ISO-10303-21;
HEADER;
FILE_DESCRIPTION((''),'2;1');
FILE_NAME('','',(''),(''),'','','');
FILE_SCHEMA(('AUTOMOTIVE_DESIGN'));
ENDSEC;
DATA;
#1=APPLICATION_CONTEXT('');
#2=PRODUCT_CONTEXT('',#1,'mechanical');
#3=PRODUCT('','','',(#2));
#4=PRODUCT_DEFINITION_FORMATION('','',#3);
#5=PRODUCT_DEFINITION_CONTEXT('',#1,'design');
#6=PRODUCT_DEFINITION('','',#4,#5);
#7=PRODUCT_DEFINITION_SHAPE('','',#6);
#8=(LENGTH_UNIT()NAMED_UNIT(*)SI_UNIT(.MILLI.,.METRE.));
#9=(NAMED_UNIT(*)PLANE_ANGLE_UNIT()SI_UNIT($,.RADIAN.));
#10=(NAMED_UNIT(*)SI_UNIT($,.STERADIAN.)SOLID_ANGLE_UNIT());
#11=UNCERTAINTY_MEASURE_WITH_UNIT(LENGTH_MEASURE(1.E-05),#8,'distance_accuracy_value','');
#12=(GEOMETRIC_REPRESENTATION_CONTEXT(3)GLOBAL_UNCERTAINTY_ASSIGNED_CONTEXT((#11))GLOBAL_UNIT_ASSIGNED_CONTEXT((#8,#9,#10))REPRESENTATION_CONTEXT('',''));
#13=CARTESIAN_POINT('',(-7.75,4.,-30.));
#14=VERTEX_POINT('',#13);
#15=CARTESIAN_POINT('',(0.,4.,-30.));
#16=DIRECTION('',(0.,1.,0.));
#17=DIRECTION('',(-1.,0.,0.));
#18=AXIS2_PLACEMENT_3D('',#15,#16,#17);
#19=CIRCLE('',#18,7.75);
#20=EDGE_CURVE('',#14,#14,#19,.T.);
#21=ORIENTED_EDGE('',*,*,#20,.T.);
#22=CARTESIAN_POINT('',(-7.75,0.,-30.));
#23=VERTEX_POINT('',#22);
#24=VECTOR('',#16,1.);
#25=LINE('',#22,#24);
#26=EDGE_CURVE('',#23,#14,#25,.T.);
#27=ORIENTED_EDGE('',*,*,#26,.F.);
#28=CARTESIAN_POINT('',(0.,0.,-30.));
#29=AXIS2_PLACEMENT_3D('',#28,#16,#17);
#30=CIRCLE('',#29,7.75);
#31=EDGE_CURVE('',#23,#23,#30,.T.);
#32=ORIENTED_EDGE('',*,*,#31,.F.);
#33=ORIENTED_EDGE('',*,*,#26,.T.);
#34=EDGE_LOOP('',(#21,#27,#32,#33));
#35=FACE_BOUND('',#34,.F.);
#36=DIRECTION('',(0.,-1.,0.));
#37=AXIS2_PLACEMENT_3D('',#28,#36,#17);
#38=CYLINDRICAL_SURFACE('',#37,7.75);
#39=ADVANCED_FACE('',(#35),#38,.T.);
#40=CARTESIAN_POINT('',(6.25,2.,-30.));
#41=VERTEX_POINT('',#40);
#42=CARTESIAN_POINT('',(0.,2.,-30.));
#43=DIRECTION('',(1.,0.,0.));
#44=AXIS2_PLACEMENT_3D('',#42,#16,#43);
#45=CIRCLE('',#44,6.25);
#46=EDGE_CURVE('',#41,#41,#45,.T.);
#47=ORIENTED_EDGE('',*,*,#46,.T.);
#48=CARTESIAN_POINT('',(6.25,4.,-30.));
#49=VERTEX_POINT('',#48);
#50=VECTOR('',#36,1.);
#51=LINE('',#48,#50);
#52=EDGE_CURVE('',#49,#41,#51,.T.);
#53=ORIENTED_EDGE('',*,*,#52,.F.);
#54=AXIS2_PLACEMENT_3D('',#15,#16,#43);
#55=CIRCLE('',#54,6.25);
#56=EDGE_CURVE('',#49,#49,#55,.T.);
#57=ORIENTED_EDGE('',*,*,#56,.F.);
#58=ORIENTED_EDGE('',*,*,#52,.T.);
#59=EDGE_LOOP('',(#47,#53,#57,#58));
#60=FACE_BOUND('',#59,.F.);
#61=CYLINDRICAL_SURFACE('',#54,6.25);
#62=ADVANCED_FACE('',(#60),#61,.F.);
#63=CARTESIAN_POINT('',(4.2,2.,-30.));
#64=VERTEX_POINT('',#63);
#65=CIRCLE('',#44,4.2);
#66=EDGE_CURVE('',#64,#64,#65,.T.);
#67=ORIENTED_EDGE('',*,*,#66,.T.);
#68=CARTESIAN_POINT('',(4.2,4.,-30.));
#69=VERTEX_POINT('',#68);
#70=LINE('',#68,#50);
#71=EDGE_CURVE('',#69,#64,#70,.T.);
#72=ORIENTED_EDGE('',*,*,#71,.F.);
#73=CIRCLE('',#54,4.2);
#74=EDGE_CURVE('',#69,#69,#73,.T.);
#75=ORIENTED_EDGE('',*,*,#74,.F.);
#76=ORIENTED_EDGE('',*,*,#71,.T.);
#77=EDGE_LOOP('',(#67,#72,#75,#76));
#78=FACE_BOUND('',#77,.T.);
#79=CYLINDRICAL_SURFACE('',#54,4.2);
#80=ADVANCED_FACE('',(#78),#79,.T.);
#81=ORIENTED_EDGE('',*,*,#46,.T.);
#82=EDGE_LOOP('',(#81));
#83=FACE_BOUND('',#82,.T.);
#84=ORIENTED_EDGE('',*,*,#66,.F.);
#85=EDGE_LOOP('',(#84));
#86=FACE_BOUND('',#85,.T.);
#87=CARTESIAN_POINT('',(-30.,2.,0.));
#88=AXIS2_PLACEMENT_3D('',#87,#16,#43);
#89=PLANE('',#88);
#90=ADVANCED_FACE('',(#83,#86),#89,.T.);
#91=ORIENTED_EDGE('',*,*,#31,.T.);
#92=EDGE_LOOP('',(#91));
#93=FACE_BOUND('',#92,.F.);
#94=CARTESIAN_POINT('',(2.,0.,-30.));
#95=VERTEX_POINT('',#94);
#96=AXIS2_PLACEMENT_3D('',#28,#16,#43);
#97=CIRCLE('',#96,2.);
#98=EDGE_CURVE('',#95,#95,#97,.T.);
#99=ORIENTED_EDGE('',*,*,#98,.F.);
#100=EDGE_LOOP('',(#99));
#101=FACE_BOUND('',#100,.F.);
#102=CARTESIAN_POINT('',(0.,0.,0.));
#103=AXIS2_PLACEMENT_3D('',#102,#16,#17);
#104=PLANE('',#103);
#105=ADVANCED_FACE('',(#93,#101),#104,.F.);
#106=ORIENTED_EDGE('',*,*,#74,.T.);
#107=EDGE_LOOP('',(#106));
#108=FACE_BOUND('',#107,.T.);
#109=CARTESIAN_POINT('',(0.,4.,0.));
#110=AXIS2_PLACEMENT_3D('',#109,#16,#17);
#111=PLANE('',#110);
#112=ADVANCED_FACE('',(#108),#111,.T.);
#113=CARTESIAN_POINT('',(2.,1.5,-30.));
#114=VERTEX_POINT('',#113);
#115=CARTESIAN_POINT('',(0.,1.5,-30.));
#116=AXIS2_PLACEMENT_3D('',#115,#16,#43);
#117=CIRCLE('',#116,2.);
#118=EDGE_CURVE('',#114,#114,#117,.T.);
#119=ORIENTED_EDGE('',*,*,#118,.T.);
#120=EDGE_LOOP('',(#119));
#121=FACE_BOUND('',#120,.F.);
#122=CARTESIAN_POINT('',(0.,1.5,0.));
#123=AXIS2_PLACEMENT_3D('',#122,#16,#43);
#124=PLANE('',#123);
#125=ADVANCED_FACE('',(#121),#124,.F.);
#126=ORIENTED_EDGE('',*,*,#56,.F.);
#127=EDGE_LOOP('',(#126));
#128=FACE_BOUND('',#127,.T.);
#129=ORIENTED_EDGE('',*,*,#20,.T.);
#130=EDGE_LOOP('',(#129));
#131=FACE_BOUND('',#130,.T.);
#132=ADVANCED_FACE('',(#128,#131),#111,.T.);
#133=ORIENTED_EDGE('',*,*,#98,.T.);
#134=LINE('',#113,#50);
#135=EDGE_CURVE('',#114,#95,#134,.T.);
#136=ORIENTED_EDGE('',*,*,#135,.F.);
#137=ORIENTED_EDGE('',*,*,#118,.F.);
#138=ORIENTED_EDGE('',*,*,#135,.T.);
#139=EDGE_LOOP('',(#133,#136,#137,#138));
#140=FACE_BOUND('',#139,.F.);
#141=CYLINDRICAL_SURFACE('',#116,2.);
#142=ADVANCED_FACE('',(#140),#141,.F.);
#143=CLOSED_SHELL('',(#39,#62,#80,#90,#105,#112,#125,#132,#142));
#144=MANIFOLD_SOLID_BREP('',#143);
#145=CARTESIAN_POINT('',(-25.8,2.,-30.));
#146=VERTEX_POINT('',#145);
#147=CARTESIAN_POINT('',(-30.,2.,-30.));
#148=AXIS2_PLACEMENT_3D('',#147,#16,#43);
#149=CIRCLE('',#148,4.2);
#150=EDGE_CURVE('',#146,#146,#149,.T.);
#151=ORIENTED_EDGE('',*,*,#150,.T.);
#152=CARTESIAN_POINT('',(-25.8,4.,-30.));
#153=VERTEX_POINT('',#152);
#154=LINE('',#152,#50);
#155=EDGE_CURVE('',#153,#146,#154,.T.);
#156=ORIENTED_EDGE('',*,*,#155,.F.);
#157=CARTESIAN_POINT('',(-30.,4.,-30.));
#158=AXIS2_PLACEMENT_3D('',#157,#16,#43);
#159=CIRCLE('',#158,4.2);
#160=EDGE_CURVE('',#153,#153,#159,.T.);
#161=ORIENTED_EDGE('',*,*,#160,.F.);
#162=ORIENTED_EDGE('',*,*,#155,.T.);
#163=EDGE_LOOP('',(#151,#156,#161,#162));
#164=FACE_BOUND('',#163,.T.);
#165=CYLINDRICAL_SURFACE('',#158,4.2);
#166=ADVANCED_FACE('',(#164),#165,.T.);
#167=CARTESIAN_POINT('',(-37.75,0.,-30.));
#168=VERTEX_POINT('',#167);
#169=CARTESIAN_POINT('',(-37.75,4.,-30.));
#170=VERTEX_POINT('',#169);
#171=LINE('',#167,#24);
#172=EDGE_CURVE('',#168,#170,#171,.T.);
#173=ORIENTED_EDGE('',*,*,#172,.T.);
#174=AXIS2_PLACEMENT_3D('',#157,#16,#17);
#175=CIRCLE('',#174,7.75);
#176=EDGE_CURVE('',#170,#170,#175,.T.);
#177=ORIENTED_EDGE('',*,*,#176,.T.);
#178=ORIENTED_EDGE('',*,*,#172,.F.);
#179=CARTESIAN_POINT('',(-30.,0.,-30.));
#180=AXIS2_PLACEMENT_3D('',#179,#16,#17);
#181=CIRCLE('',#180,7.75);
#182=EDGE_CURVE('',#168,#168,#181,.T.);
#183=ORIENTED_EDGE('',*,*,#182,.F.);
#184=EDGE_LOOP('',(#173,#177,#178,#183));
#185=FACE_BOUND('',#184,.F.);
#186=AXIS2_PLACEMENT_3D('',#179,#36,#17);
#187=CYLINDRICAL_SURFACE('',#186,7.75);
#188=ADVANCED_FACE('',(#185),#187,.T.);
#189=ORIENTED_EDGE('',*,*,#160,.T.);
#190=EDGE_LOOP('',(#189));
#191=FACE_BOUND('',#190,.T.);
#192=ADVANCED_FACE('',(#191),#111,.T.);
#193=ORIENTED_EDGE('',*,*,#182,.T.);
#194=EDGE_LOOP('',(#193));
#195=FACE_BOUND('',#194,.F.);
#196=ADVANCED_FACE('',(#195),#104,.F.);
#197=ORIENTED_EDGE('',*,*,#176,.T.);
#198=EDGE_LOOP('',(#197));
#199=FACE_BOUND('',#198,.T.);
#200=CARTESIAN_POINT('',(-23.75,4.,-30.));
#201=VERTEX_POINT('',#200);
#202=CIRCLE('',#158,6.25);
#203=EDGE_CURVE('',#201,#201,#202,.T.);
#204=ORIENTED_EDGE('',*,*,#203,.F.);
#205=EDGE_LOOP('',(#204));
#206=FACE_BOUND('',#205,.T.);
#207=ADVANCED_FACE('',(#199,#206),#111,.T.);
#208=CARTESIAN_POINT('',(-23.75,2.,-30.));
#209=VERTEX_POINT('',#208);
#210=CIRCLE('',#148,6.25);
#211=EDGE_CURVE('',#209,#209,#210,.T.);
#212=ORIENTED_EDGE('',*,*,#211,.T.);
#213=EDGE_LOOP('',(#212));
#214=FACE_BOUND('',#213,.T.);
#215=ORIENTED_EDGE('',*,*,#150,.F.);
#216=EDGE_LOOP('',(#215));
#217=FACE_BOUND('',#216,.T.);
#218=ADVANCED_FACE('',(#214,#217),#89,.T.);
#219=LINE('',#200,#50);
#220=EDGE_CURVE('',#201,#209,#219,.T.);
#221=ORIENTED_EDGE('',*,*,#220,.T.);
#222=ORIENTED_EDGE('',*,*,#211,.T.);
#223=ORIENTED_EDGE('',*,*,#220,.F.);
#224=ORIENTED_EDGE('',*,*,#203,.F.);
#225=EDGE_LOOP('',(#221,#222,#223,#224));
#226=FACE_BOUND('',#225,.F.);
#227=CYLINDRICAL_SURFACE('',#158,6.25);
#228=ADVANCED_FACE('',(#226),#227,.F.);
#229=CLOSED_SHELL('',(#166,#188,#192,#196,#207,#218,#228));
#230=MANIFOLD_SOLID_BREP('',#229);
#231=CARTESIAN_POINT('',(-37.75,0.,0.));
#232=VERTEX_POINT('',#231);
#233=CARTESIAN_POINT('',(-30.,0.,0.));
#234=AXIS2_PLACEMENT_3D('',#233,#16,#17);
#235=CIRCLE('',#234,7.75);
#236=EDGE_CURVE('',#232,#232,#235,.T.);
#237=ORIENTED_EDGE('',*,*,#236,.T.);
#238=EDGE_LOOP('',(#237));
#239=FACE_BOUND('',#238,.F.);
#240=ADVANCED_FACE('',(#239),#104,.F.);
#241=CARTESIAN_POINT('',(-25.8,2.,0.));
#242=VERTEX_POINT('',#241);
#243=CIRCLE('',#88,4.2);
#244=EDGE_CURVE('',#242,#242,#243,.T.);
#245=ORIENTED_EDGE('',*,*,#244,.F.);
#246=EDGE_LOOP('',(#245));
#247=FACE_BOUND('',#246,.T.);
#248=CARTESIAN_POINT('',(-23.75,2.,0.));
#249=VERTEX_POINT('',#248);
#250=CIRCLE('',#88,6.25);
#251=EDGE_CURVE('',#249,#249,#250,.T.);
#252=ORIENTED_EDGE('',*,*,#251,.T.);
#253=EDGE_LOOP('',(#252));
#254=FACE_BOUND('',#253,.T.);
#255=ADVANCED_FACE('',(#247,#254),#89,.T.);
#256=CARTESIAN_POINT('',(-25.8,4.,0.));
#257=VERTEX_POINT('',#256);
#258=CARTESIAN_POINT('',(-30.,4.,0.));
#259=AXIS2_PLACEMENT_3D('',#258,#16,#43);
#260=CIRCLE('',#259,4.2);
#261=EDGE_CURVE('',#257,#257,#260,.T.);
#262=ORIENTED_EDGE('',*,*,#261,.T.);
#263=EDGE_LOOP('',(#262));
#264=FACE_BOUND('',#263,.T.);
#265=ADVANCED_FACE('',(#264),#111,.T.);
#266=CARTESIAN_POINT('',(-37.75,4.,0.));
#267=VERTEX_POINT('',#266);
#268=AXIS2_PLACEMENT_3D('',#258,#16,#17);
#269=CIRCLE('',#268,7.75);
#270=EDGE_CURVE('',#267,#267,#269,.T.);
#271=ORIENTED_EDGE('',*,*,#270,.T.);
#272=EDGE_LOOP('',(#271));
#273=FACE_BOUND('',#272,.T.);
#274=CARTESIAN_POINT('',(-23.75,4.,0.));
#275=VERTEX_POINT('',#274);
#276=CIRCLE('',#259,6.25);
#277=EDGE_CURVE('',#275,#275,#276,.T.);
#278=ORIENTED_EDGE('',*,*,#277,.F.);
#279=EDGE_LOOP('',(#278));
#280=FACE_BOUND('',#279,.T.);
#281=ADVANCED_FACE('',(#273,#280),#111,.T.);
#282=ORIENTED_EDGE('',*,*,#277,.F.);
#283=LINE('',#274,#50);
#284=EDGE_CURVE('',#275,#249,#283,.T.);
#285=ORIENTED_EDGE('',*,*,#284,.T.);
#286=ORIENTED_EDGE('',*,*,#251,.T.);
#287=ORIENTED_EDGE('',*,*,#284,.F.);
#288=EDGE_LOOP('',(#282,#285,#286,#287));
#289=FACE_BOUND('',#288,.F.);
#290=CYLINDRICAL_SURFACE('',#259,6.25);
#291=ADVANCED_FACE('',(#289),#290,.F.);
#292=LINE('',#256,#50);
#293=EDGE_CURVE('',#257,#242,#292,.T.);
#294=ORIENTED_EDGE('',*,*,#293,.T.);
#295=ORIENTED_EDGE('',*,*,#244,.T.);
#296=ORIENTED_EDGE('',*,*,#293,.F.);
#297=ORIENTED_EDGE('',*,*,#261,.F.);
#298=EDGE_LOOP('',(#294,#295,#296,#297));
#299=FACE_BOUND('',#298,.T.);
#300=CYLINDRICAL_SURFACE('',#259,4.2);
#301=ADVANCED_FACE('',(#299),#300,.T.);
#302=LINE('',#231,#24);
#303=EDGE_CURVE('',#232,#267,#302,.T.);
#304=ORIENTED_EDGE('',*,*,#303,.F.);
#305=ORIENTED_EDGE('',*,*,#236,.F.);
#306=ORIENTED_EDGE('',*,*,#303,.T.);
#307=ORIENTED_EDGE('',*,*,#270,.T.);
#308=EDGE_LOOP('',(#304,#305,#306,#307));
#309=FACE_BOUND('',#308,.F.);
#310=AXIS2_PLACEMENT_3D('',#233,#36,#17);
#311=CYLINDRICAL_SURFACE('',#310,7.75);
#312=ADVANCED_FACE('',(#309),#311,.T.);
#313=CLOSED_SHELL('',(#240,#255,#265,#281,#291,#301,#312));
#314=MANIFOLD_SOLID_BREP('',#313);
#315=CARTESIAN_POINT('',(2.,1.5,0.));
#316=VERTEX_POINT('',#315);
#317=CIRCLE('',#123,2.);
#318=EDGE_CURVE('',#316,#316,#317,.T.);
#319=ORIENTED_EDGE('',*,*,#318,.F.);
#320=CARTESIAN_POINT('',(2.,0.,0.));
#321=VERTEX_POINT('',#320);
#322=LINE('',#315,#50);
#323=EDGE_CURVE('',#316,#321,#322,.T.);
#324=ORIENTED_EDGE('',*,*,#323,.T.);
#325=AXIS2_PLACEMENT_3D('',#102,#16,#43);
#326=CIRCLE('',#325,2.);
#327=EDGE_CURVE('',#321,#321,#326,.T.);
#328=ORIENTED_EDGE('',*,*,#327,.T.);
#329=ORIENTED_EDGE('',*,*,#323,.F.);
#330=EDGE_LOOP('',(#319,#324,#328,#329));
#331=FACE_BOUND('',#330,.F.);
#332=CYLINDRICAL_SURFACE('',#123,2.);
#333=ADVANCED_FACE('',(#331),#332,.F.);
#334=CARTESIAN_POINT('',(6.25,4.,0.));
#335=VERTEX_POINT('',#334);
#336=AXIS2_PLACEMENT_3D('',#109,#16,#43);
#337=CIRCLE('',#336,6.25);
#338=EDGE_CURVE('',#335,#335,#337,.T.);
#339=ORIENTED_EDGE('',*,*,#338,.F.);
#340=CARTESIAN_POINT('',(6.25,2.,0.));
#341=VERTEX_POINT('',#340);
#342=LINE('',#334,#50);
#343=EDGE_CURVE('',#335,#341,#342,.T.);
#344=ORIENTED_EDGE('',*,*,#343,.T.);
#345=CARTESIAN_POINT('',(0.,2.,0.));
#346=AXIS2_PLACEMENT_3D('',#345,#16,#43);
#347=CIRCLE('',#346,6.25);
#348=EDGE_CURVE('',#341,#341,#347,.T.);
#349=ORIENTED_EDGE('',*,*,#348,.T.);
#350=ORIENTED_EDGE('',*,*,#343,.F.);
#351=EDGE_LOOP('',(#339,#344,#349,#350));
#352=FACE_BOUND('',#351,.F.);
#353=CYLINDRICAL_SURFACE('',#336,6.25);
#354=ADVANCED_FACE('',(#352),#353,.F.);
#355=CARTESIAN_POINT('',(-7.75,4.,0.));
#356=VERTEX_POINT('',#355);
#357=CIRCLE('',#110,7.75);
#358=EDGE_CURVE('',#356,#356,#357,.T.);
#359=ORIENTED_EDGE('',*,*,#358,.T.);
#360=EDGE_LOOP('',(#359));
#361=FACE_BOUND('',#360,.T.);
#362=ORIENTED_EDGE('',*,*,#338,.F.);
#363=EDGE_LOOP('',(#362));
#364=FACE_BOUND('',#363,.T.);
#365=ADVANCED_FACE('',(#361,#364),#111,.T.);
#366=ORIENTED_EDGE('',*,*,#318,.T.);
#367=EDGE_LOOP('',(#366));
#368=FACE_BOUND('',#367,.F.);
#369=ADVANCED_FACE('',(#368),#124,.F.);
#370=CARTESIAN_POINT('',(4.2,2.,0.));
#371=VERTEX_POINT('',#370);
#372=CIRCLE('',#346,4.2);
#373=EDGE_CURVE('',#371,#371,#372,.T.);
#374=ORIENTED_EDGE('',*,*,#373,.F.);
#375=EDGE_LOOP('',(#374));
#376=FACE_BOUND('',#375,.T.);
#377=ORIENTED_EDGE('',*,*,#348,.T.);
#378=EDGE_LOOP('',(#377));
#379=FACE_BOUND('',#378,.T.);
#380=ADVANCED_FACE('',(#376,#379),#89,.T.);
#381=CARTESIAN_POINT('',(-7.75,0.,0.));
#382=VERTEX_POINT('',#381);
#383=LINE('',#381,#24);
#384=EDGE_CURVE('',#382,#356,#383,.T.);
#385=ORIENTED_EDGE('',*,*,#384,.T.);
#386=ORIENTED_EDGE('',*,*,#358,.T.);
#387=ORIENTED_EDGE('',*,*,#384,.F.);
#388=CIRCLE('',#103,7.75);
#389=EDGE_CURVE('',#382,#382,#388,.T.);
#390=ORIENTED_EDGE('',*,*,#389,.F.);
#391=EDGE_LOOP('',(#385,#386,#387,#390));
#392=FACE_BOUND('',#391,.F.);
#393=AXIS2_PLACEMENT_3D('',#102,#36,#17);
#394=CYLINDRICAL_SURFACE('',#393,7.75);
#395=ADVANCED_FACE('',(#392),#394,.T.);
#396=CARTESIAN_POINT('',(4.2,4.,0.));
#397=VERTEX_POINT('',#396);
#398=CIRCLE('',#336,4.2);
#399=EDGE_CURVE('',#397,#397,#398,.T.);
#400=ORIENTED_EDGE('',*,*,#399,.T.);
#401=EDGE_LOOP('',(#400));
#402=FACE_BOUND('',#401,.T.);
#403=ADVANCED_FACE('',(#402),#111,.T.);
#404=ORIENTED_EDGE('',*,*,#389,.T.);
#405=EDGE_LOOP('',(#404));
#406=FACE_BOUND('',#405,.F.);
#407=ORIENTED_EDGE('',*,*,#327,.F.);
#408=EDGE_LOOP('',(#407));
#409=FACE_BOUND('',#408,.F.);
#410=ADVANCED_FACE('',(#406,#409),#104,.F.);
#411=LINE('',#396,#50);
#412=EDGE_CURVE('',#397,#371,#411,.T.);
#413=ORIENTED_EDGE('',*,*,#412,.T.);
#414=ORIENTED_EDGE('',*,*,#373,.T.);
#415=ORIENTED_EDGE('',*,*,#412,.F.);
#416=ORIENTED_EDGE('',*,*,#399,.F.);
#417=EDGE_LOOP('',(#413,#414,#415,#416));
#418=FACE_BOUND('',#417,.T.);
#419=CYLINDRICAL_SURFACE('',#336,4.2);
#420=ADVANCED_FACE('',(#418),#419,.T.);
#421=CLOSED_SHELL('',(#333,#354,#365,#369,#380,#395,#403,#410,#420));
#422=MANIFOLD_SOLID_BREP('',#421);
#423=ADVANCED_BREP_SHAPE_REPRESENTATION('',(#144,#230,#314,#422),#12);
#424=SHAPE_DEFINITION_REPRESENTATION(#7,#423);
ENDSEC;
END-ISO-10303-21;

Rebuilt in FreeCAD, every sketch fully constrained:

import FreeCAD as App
import Part
import Sketcher

doc = App.newDocument("Part")
body = doc.addObject("PartDesign::Body", "Body")
body.AllowCompound = True

# Sketch on XZ plane
sketch1 = body.newObject("Sketcher::SketchObject", "Sketch")
sketch1.AttachmentSupport = (doc.getObject("XZ_Plane"), [""])
sketch1.MapMode = "FlatFace"
sketch1.addGeometry([
    Part.Circle(App.Vector(0, 0, 0), App.Vector(0, 0, 1), 8),
    Part.Circle(App.Vector(0, -30, 0), App.Vector(0, 0, 1), 8),
    Part.Circle(App.Vector(-30, 0, 0), App.Vector(0, 0, 1), 8),
    Part.Circle(App.Vector(-30, -30, 0), App.Vector(0, 0, 1), 8),
], False)
sketch1.addConstraint([
    Sketcher.Constraint("Coincident", 0, 3, -1, 1),
    Sketcher.Constraint("Equal", 0, 1),
    Sketcher.Constraint("Equal", 1, 2),
    Sketcher.Constraint("Equal", 2, 3),
    Sketcher.Constraint("PointOnObject", 1, 3, -2),
    Sketcher.Constraint("PointOnObject", 2, 3, -1),
    Sketcher.Constraint("Horizontal", 1, 3, 3, 3),
    Sketcher.Constraint("Vertical", 2, 3, 3, 3),
    Sketcher.Constraint("Diameter", 0, 15.5),
    Sketcher.Constraint("DistanceY", 1, 3, -1, 1, 30.0),
    Sketcher.Constraint("DistanceX", 2, 3, -1, 1, 30.0),
])
pad1 = body.newObject("PartDesign::Pad", "Pad")
pad1.Profile = sketch1
pad1.Length = 4
pad1.Reversed = True

# Sketch on XZ plane
sketch2 = body.newObject("Sketcher::SketchObject", "Sketch001")
sketch2.AttachmentSupport = (doc.getObject("XZ_Plane"), [""])
sketch2.MapMode = "FlatFace"
sketch2.AttachmentOffset = App.Placement(App.Vector(0, 0, -1.5), App.Rotation())
sketch2.addGeometry([
    Part.Circle(App.Vector(0, 0, 0), App.Vector(0, 0, 1), 2),
    Part.Circle(App.Vector(0, -30, 0), App.Vector(0, 0, 1), 2),
], False)
sketch2.addConstraint([
    Sketcher.Constraint("Coincident", 0, 3, -1, 1),
    Sketcher.Constraint("Equal", 0, 1),
    Sketcher.Constraint("PointOnObject", 1, 3, -2),
    Sketcher.Constraint("Diameter", 0, 4.0),
    Sketcher.Constraint("DistanceY", 1, 3, -1, 1, 30.0),
])
pocket1 = body.newObject("PartDesign::Pocket", "Pocket")
pocket1.Profile = sketch2
pocket1.Length = 2.5
pocket1.Reversed = True

# Sketch on XZ plane
sketch3 = body.newObject("Sketcher::SketchObject", "Sketch002")
sketch3.AttachmentSupport = (doc.getObject("XZ_Plane"), [""])
sketch3.MapMode = "FlatFace"
sketch3.AttachmentOffset = App.Placement(App.Vector(0, 0, -4), App.Rotation())
sketch3.addGeometry([
    Part.Circle(App.Vector(-30, 0, 0), App.Vector(0, 0, 1), 6.2),  # 0
    Part.Circle(App.Vector(-30, 0, 0), App.Vector(0, 0, 1), 4.2),  # 1
    Part.Circle(App.Vector(-30, -30, 0), App.Vector(0, 0, 1), 6.2),  # 2
    Part.Circle(App.Vector(-30, -30, 0), App.Vector(0, 0, 1), 4.2),  # 3
    Part.Circle(App.Vector(0, 0, 0), App.Vector(0, 0, 1), 6.2),  # 4
    Part.Circle(App.Vector(0, 0, 0), App.Vector(0, 0, 1), 4.2),  # 5
    Part.Circle(App.Vector(0, -30, 0), App.Vector(0, 0, 1), 6.2),  # 6
    Part.Circle(App.Vector(0, -30, 0), App.Vector(0, 0, 1), 4.2),  # 7
], False)
sketch3.addConstraint([
    Sketcher.Constraint("Coincident", 4, 3, -1, 1),
    Sketcher.Constraint("Coincident", 5, 3, -1, 1),
    Sketcher.Constraint("Coincident", 1, 3, 0, 3),
    Sketcher.Constraint("Coincident", 3, 3, 2, 3),
    Sketcher.Constraint("Coincident", 7, 3, 6, 3),
    Sketcher.Constraint("Equal", 0, 2),
    Sketcher.Constraint("Equal", 1, 3),
    Sketcher.Constraint("Equal", 2, 4),
    Sketcher.Constraint("Equal", 3, 5),
    Sketcher.Constraint("Equal", 4, 6),
    Sketcher.Constraint("Equal", 5, 7),
    Sketcher.Constraint("PointOnObject", 0, 3, -1),
    Sketcher.Constraint("PointOnObject", 6, 3, -2),
    Sketcher.Constraint("Horizontal", 3, 3, 6, 3),
    Sketcher.Constraint("Vertical", 1, 3, 2, 3),
    Sketcher.Constraint("Diameter", 0, 12.5),
    Sketcher.Constraint("Diameter", 1, 8.4),
    Sketcher.Constraint("DistanceX", 0, 3, -1, 1, 30.0),
    Sketcher.Constraint("DistanceY", 2, 3, -1, 1, 30.0),
])
pocket2 = body.newObject("PartDesign::Pocket", "Pocket001")
pocket2.Profile = sketch3
pocket2.Length = 2
pocket2.Reversed = True

doc.recompute()
